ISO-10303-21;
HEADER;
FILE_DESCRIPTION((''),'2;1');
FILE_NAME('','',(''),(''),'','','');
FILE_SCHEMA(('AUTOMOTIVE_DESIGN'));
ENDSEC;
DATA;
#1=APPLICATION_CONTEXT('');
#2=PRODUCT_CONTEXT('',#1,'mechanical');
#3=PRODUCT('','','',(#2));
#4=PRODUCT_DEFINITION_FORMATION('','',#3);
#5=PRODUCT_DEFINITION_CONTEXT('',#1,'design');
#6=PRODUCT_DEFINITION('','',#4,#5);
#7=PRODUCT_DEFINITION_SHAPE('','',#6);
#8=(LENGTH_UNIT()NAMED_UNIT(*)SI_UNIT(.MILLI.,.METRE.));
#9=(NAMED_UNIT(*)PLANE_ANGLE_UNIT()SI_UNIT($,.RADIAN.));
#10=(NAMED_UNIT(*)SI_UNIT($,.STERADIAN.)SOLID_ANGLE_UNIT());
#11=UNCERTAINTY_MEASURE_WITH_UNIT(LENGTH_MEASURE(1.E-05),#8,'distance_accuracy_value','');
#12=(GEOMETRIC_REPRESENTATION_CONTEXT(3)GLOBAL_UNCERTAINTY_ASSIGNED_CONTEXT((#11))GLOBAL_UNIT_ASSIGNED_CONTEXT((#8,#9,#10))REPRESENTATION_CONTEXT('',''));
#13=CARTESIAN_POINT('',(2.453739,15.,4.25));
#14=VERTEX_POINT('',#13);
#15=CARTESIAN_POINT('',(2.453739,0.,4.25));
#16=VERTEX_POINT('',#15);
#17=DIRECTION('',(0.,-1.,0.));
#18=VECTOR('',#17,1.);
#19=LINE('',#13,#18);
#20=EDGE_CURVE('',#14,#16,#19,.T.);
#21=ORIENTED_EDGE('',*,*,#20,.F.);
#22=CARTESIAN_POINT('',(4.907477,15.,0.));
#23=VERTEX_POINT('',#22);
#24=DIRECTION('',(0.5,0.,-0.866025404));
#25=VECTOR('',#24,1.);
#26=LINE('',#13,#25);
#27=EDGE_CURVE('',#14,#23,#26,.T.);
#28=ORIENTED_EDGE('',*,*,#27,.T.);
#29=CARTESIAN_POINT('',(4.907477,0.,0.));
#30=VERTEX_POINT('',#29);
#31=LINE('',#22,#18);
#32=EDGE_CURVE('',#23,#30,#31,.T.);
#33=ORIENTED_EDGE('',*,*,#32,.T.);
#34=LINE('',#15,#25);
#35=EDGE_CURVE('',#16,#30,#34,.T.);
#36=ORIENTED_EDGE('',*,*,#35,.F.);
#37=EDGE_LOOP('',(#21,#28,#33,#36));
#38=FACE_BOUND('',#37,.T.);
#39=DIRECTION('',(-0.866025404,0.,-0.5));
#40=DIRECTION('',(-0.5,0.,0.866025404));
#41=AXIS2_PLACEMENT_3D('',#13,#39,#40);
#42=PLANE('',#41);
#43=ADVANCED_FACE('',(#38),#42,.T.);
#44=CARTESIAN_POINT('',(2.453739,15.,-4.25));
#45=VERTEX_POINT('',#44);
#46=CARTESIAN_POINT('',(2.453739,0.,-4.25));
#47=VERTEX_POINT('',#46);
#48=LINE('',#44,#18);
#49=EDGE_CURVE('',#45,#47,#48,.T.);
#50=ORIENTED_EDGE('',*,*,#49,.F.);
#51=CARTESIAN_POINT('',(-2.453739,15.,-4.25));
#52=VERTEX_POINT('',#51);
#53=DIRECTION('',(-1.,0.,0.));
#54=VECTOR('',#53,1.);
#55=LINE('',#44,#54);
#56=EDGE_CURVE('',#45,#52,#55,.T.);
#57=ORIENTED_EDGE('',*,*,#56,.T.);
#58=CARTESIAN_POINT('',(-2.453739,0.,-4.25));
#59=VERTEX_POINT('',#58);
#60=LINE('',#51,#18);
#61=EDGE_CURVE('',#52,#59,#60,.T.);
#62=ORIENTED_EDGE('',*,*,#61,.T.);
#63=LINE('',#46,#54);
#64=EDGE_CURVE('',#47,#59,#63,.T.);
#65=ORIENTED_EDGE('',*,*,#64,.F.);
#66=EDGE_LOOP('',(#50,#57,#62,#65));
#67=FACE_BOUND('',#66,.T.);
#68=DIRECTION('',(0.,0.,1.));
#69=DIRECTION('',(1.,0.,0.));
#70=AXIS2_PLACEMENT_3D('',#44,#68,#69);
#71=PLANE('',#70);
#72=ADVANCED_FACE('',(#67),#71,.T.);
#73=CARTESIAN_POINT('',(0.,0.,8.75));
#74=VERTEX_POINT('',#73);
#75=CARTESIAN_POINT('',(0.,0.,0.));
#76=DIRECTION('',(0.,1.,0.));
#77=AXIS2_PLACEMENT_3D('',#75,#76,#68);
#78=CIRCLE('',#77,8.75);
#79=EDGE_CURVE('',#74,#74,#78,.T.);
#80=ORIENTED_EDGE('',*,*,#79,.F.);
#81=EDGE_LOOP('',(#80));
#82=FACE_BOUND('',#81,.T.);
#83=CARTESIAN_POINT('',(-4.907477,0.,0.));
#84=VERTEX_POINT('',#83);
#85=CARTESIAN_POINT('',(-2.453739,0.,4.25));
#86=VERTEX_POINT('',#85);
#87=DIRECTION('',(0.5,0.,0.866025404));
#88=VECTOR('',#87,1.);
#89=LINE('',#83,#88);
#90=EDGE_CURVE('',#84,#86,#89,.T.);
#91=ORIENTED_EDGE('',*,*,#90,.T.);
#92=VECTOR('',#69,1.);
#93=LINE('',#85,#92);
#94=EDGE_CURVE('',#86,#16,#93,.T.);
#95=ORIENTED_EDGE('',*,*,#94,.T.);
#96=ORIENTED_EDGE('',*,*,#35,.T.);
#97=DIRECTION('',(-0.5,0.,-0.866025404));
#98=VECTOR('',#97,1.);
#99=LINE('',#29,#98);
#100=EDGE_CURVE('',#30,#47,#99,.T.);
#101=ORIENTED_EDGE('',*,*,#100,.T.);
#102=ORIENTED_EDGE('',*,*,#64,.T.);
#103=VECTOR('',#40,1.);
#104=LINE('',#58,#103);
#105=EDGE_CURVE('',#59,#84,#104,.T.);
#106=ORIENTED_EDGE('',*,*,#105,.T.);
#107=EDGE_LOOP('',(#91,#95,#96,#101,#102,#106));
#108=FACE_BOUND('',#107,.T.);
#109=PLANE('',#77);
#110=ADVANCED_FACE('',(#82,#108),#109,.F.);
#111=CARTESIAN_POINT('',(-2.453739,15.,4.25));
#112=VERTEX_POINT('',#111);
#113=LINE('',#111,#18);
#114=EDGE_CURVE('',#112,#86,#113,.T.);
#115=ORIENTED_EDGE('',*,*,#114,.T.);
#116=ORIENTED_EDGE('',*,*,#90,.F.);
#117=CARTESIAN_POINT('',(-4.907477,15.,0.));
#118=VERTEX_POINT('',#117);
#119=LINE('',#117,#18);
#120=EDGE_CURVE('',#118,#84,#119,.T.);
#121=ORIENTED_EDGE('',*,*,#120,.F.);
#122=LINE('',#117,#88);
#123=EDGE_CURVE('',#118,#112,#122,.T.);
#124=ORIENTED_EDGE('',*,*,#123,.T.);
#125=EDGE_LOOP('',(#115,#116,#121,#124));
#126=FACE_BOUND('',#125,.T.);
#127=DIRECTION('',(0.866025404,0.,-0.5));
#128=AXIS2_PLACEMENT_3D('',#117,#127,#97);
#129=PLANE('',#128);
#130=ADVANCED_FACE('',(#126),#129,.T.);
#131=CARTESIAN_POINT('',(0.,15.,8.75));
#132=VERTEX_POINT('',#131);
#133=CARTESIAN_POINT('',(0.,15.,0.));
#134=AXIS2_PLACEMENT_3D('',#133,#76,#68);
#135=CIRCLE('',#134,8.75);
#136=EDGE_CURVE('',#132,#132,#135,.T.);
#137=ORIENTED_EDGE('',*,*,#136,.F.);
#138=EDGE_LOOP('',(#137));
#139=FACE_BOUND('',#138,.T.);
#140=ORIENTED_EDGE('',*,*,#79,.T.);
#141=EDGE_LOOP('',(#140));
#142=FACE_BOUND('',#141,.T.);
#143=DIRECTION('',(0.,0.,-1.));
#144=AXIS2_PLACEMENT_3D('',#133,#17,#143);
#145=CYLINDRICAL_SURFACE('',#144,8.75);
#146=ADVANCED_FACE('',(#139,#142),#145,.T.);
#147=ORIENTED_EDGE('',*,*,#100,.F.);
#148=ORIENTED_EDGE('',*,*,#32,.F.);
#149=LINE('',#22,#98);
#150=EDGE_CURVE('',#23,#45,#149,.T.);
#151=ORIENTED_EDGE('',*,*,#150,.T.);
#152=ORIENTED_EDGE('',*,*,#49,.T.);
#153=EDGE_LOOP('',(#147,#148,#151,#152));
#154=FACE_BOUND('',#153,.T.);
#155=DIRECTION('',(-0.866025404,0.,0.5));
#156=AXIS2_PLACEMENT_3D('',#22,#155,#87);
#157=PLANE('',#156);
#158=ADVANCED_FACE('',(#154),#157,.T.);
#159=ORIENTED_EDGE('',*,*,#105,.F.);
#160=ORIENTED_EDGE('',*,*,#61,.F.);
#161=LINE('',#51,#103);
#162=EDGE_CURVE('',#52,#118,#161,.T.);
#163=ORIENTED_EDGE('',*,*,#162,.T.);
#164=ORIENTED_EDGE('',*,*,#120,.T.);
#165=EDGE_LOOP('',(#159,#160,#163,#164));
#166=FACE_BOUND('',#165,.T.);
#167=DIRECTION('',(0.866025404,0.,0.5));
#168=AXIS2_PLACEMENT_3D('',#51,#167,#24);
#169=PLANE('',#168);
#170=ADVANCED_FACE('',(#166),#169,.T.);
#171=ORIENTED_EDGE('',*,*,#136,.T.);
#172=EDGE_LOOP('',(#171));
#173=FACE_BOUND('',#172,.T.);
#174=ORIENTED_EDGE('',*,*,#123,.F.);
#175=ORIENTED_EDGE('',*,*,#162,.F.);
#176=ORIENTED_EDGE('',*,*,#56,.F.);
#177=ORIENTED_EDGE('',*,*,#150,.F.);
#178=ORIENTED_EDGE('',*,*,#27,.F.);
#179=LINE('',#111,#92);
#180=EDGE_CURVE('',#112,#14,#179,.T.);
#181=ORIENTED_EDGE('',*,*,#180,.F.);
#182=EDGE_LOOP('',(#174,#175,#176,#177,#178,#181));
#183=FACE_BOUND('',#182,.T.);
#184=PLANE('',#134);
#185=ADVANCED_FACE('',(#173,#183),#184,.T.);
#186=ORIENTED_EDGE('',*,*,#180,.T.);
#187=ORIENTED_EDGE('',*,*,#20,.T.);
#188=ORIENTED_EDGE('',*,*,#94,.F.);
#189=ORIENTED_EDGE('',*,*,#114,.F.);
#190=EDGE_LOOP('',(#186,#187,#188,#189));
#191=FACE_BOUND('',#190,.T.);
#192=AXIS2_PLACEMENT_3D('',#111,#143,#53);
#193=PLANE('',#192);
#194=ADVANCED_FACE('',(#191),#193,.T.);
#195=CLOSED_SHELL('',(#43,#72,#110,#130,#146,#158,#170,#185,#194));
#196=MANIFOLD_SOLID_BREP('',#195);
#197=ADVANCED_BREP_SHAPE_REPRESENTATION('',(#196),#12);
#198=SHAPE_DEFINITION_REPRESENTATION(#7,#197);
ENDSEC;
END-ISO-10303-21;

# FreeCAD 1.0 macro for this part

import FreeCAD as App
import Part
import Sketcher
Q = App.Units.Quantity

doc = App.newDocument("Part")
body = doc.addObject("PartDesign::Body", "Body")

sketch1 = body.newObject("Sketcher::SketchObject", "Sketch")
sketch1.AttachmentSupport = (doc.getObject("XZ_Plane"), [""])
sketch1.MapMode = "FlatFace"
sketch1.addGeometry(Part.Circle(App.Vector(0, 0, 0), App.Vector(0, 0, 1), 8.75), False)
sketch1.addGeometry(Part.LineSegment(App.Vector(2.453739, -4.25, 0), App.Vector(4.907477, 0, 0)), False)
sketch1.addGeometry(Part.LineSegment(App.Vector(4.907477, 0, 0), App.Vector(2.453739, 4.25, 0)), False)
sketch1.addGeometry(Part.LineSegment(App.Vector(2.453739, 4.25, 0), App.Vector(-2.453739, 4.25, 0)), False)
sketch1.addGeometry(Part.LineSegment(App.Vector(-2.453739, 4.25, 0), App.Vector(-4.907477, 0, 0)), False)
sketch1.addGeometry(Part.LineSegment(App.Vector(-4.907477, 0, 0), App.Vector(-2.453739, -4.25, 0)), False)
sketch1.addGeometry(Part.LineSegment(App.Vector(-2.453739, -4.25, 0), App.Vector(2.453739, -4.25, 0)), False)
sketch1.addConstraint(Sketcher.Constraint("Coincident", 1, 2, 2, 1))
sketch1.addConstraint(Sketcher.Constraint("Coincident", 2, 2, 3, 1))
sketch1.addConstraint(Sketcher.Constraint("Coincident", 3, 2, 4, 1))
sketch1.addConstraint(Sketcher.Constraint("Coincident", 4, 2, 5, 1))
sketch1.addConstraint(Sketcher.Constraint("Coincident", 5, 2, 6, 1))
sketch1.addConstraint(Sketcher.Constraint("Coincident", 6, 2, 1, 1))
sketch1.addConstraint(Sketcher.Constraint("Horizontal", 3))
sketch1.addConstraint(Sketcher.Constraint("Horizontal", 6))
sketch1.addConstraint(Sketcher.Constraint("Coincident", 0, 3, -1, 1))
sketch1.addConstraint(Sketcher.Constraint("Symmetric", 1, 2, 4, 2, -1, 1))
sketch1.addConstraint(Sketcher.Constraint("Symmetric", 2, 2, 5, 2, -1, 1))
sketch1.addConstraint(Sketcher.Constraint("PointOnObject", 1, 2, -1))
sketch1.addConstraint(Sketcher.Constraint("Parallel", 1, 4))
sketch1.addConstraint(Sketcher.Constraint("Vertical", 3, 2, 5, 2))
sketch1.addConstraint(Sketcher.Constraint("Diameter", 0, Q("17.5 mm")))
sketch1.addConstraint(Sketcher.Constraint("Angle", 1, Q("60 deg")))
sketch1.addConstraint(Sketcher.Constraint("DistanceY", 5, 2, 3, 2, Q("8.5 mm")))
sketch1.addConstraint(Sketcher.Constraint("DistanceX", 3, 2, 3, 1, Q("4.907477 mm")))
pad1 = body.newObject("PartDesign::Pad", "Pad")
pad1.Profile = sketch1
pad1.Length = 15
pad1.Reversed = True

doc.recompute()
